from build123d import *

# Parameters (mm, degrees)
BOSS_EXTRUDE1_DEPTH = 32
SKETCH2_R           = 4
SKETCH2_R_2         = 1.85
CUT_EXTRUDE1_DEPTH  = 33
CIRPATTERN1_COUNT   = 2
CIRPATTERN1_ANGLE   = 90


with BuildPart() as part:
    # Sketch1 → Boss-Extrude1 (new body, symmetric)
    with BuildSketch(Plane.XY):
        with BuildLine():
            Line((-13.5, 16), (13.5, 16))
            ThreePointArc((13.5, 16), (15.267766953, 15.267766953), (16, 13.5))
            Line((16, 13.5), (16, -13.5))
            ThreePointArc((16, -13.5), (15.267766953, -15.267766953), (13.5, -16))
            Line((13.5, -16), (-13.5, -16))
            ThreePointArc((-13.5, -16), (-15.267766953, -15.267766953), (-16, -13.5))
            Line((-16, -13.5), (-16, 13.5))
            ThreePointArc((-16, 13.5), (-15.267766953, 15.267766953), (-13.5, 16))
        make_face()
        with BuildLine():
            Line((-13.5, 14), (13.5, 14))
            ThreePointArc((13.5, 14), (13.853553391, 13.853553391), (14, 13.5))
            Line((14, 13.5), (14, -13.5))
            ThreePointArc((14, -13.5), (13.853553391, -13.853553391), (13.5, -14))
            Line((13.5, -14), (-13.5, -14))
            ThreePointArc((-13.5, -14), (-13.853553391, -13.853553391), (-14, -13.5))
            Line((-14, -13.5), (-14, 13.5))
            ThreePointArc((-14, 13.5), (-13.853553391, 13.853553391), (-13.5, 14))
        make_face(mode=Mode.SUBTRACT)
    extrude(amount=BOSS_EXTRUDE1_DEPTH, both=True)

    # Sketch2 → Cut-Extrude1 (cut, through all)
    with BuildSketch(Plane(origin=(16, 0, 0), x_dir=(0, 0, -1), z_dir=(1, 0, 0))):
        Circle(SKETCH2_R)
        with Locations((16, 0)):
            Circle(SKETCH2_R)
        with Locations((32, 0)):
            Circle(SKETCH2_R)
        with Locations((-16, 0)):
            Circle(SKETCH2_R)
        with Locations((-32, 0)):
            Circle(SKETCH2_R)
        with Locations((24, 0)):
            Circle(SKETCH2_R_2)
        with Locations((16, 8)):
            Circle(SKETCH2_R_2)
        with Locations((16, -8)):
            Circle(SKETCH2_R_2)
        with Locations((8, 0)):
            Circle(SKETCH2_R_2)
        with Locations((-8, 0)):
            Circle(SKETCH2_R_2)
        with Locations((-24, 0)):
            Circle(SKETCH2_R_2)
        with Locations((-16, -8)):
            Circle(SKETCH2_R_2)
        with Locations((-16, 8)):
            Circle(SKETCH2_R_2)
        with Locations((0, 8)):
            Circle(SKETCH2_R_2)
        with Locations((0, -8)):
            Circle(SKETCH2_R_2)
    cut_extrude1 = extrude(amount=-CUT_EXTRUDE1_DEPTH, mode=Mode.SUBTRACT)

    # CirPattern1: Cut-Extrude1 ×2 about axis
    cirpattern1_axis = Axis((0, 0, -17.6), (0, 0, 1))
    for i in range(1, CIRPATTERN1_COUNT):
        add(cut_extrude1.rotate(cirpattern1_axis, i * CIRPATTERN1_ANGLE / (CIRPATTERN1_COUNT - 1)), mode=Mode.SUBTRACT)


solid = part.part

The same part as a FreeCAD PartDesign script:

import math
import FreeCAD as App
import Part
import Sketcher
Q = App.Units.Quantity

doc = App.newDocument("Part")
body = doc.addObject("PartDesign::Body", "Body")

sketch1 = doc.addObject("Sketcher::SketchObject", "Sketch")
body.addObject(sketch1)
sketch1.AttachmentSupport = (doc.XY_Plane, [""])
sketch1.MapMode = "FlatFace"
sketch1.addGeometry([
    Part.LineSegment(App.Vector(13.5, 16, 0), App.Vector(-13.5, 16, 0)),
    Part.ArcOfCircle(Part.Circle(App.Vector(-13.5, 13.5, 0), App.Vector(0, 0, 1), 2.5), math.radians(90), math.radians(180)),
    Part.LineSegment(App.Vector(-16, 13.5, 0), App.Vector(-16, -13.5, 0)),
    Part.ArcOfCircle(Part.Circle(App.Vector(-13.5, -13.5, 0), App.Vector(0, 0, 1), 2.5), math.radians(180), math.radians(270)),
    Part.LineSegment(App.Vector(-13.5, -16, 0), App.Vector(13.5, -16, 0)),
    Part.ArcOfCircle(Part.Circle(App.Vector(13.5, -13.5, 0), App.Vector(0, 0, 1), 2.5), math.radians(-90), math.radians(0)),
    Part.LineSegment(App.Vector(16, -13.5, 0), App.Vector(16, 13.5, 0)),
    Part.ArcOfCircle(Part.Circle(App.Vector(13.5, 13.5, 0), App.Vector(0, 0, 1), 2.5), math.radians(0), math.radians(90)),
    Part.LineSegment(App.Vector(-13.5, 14, 0), App.Vector(13.5, 14, 0)),
    Part.ArcOfCircle(Part.Circle(App.Vector(13.5, 13.5, 0), App.Vector(0, 0, 1), 0.5), math.radians(0), math.radians(90)),
    Part.LineSegment(App.Vector(14, 13.5, 0), App.Vector(14, -13.5, 0)),
    Part.ArcOfCircle(Part.Circle(App.Vector(13.5, -13.5, 0), App.Vector(0, 0, 1), 0.5), math.radians(-90), math.radians(0)),
    Part.LineSegment(App.Vector(13.5, -14, 0), App.Vector(-13.5, -14, 0)),
    Part.ArcOfCircle(Part.Circle(App.Vector(-13.5, -13.5, 0), App.Vector(0, 0, 1), 0.5), math.radians(180), math.radians(270)),
    Part.LineSegment(App.Vector(-14, -13.5, 0), App.Vector(-14, 13.5, 0)),
    Part.ArcOfCircle(Part.Circle(App.Vector(-13.5, 13.5, 0), App.Vector(0, 0, 1), 0.5), math.radians(90), math.radians(180)),
], False)
sketch1.addConstraint([
    Sketcher.Constraint("Tangent", 0, 2, 1, 1),
    Sketcher.Constraint("Tangent", 1, 2, 2, 1),
    Sketcher.Constraint("Tangent", 2, 2, 3, 1),
    Sketcher.Constraint("Tangent", 3, 2, 4, 1),
    Sketcher.Constraint("Tangent", 4, 2, 5, 1),
    Sketcher.Constraint("Tangent", 5, 2, 6, 1),
    Sketcher.Constraint("Tangent", 6, 2, 7, 1),
    Sketcher.Constraint("Tangent", 7, 2, 0, 1),
    Sketcher.Constraint("Tangent", 8, 2, 9, 2),
    Sketcher.Constraint("Tangent", 9, 1, 10, 1),
    Sketcher.Constraint("Tangent", 10, 2, 11, 2),
    Sketcher.Constraint("Tangent", 11, 1, 12, 1),
    Sketcher.Constraint("Tangent", 12, 2, 13, 2),
    Sketcher.Constraint("Tangent", 13, 1, 14, 1),
    Sketcher.Constraint("Tangent", 14, 2, 15, 2),
    Sketcher.Constraint("Tangent", 15, 1, 8, 1),
    Sketcher.Constraint("Horizontal", 0),
    Sketcher.Constraint("Vertical", 2),
    Sketcher.Constraint("Horizontal", 4),
    Sketcher.Constraint("Vertical", 6),
    Sketcher.Constraint("Horizontal", 8),
    Sketcher.Constraint("Vertical", 10),
    Sketcher.Constraint("Horizontal", 12),
    Sketcher.Constraint("Vertical", 14),
    Sketcher.Constraint("Coincident", 9, 3, 7, 3),
    Sketcher.Constraint("Coincident", 11, 3, 5, 3),
    Sketcher.Constraint("Coincident", 13, 3, 3, 3),
    Sketcher.Constraint("Equal", 1, 3),
    Sketcher.Constraint("Equal", 3, 5),
    Sketcher.Constraint("Equal", 5, 7),
    Sketcher.Constraint("Equal", 13, 15),
    Sketcher.Constraint("Symmetric", 1, 3, 5, 3, -1, 1),
    Sketcher.Constraint("Equal", 12, 2),
    Sketcher.Constraint("Radius", 1, Q("2.5 mm")),
    Sketcher.Constraint("Radius", 9, Q("0.5 mm")),
    Sketcher.Constraint("DistanceX", 0, 2, 0, 1, Q("27 mm")),
])
pad1 = doc.addObject("PartDesign::Pad", "Pad")
body.addObject(pad1)
pad1.Profile = sketch1
pad1.Length = 64
pad1.Midplane = True

sketch2 = doc.addObject("Sketcher::SketchObject", "Sketch001")
body.addObject(sketch2)
sketch2.AttachmentSupport = (doc.YZ_Plane, [""])
sketch2.MapMode = "FlatFace"
sketch2.AttachmentOffset = App.Placement(App.Vector(0, 0, 16), App.Rotation())
sketch2.addGeometry([
    Part.Circle(App.Vector(0, 0, 0), App.Vector(0, 0, 1), 4),
    Part.Circle(App.Vector(0, -16, 0), App.Vector(0, 0, 1), 4),
    Part.Circle(App.Vector(0, -32, 0), App.Vector(0, 0, 1), 4),
    Part.Circle(App.Vector(0, 16, 0), App.Vector(0, 0, 1), 4),
    Part.Circle(App.Vector(0, 32, 0), App.Vector(0, 0, 1), 4),
    Part.Circle(App.Vector(0, -24, 0), App.Vector(0, 0, 1), 1.85),
    Part.Circle(App.Vector(8, -16, 0), App.Vector(0, 0, 1), 1.85),
    Part.Circle(App.Vector(-8, -16, 0), App.Vector(0, 0, 1), 1.85),
    Part.Circle(App.Vector(0, -8, 0), App.Vector(0, 0, 1), 1.85),
    Part.Circle(App.Vector(0, 8, 0), App.Vector(0, 0, 1), 1.85),
    Part.Circle(App.Vector(0, 24, 0), App.Vector(0, 0, 1), 1.85),
    Part.Circle(App.Vector(-8, 16, 0), App.Vector(0, 0, 1), 1.85),
    Part.Circle(App.Vector(8, 16, 0), App.Vector(0, 0, 1), 1.85),
    Part.Circle(App.Vector(8, 0, 0), App.Vector(0, 0, 1), 1.85),
    Part.Circle(App.Vector(-8, 0, 0), App.Vector(0, 0, 1), 1.85),
], False)
sketch2.addConstraint([
    Sketcher.Constraint("Coincident", 0, 3, -1, 1),
    Sketcher.Constraint("Equal", 0, 1),
    Sketcher.Constraint("Equal", 1, 2),
    Sketcher.Constraint("Equal", 2, 3),
    Sketcher.Constraint("Equal", 3, 4),
    Sketcher.Constraint("Equal", 5, 6),
    Sketcher.Constraint("Equal", 6, 7),
    Sketcher.Constraint("Equal", 7, 8),
    Sketcher.Constraint("Equal", 8, 9),
    Sketcher.Constraint("Equal", 9, 10),
    Sketcher.Constraint("Equal", 10, 11),
    Sketcher.Constraint("Equal", 11, 12),
    Sketcher.Constraint("Equal", 12, 13),
    Sketcher.Constraint("Equal", 13, 14),
    Sketcher.Constraint("Symmetric", 1, 3, 3, 3, -1, 1),
    Sketcher.Constraint("Symmetric", 2, 3, 4, 3, -1, 1),
    Sketcher.Constraint("Symmetric", 8, 3, 9, 3, -1, 1),
    Sketcher.Constraint("Symmetric", 5, 3, 10, 3, -1, 1),
    Sketcher.Constraint("Symmetric", 6, 3, 11, 3, -1, 1),
    Sketcher.Constraint("Symmetric", 7, 3, 12, 3, -1, 1),
    Sketcher.Constraint("Symmetric", 13, 3, 14, 3, -1, 1),
    Sketcher.Constraint("Symmetric", 6, 3, 7, 3, -2),
    Sketcher.Constraint("PointOnObject", 1, 3, -2),
    Sketcher.Constraint("PointOnObject", 2, 3, -2),
    Sketcher.Constraint("PointOnObject", 5, 3, -2),
    Sketcher.Constraint("PointOnObject", 8, 3, -2),
    Sketcher.Constraint("PointOnObject", 13, 3, -1),
    Sketcher.Constraint("Horizontal", 1, 3, 6, 3),
    Sketcher.Constraint("Vertical", 12, 3, 13, 3),
    Sketcher.Constraint("Diameter", 0, Q("8 mm")),
    Sketcher.Constraint("Diameter", 5, Q("3.7 mm")),
    Sketcher.Constraint("DistanceY", 1, 3, -1, 1, Q("16 mm")),
    Sketcher.Constraint("DistanceY", 2, 3, -1, 1, Q("32 mm")),
    Sketcher.Constraint("DistanceY", 5, 3, -1, 1, Q("24 mm")),
    Sketcher.Constraint("DistanceX", -1, 1, 6, 3, Q("8 mm")),
    Sketcher.Constraint("DistanceY", 8, 3, -1, 1, Q("8 mm")),
])
pocket1 = doc.addObject("PartDesign::Pocket", "Pocket")
body.addObject(pocket1)
pocket1.Profile = sketch2
pocket1.Type = "ThroughAll"
doc.recompute()

polarpattern = doc.addObject("PartDesign::PolarPattern", "PolarPattern")
body.addObject(polarpattern)
polarpattern.Originals = [pocket1]
polarpattern.Axis = (doc.Z_Axis, [""])
polarpattern.Angle = 90
polarpattern.Occurrences = 2
body.Tip = polarpattern

doc.recompute()
